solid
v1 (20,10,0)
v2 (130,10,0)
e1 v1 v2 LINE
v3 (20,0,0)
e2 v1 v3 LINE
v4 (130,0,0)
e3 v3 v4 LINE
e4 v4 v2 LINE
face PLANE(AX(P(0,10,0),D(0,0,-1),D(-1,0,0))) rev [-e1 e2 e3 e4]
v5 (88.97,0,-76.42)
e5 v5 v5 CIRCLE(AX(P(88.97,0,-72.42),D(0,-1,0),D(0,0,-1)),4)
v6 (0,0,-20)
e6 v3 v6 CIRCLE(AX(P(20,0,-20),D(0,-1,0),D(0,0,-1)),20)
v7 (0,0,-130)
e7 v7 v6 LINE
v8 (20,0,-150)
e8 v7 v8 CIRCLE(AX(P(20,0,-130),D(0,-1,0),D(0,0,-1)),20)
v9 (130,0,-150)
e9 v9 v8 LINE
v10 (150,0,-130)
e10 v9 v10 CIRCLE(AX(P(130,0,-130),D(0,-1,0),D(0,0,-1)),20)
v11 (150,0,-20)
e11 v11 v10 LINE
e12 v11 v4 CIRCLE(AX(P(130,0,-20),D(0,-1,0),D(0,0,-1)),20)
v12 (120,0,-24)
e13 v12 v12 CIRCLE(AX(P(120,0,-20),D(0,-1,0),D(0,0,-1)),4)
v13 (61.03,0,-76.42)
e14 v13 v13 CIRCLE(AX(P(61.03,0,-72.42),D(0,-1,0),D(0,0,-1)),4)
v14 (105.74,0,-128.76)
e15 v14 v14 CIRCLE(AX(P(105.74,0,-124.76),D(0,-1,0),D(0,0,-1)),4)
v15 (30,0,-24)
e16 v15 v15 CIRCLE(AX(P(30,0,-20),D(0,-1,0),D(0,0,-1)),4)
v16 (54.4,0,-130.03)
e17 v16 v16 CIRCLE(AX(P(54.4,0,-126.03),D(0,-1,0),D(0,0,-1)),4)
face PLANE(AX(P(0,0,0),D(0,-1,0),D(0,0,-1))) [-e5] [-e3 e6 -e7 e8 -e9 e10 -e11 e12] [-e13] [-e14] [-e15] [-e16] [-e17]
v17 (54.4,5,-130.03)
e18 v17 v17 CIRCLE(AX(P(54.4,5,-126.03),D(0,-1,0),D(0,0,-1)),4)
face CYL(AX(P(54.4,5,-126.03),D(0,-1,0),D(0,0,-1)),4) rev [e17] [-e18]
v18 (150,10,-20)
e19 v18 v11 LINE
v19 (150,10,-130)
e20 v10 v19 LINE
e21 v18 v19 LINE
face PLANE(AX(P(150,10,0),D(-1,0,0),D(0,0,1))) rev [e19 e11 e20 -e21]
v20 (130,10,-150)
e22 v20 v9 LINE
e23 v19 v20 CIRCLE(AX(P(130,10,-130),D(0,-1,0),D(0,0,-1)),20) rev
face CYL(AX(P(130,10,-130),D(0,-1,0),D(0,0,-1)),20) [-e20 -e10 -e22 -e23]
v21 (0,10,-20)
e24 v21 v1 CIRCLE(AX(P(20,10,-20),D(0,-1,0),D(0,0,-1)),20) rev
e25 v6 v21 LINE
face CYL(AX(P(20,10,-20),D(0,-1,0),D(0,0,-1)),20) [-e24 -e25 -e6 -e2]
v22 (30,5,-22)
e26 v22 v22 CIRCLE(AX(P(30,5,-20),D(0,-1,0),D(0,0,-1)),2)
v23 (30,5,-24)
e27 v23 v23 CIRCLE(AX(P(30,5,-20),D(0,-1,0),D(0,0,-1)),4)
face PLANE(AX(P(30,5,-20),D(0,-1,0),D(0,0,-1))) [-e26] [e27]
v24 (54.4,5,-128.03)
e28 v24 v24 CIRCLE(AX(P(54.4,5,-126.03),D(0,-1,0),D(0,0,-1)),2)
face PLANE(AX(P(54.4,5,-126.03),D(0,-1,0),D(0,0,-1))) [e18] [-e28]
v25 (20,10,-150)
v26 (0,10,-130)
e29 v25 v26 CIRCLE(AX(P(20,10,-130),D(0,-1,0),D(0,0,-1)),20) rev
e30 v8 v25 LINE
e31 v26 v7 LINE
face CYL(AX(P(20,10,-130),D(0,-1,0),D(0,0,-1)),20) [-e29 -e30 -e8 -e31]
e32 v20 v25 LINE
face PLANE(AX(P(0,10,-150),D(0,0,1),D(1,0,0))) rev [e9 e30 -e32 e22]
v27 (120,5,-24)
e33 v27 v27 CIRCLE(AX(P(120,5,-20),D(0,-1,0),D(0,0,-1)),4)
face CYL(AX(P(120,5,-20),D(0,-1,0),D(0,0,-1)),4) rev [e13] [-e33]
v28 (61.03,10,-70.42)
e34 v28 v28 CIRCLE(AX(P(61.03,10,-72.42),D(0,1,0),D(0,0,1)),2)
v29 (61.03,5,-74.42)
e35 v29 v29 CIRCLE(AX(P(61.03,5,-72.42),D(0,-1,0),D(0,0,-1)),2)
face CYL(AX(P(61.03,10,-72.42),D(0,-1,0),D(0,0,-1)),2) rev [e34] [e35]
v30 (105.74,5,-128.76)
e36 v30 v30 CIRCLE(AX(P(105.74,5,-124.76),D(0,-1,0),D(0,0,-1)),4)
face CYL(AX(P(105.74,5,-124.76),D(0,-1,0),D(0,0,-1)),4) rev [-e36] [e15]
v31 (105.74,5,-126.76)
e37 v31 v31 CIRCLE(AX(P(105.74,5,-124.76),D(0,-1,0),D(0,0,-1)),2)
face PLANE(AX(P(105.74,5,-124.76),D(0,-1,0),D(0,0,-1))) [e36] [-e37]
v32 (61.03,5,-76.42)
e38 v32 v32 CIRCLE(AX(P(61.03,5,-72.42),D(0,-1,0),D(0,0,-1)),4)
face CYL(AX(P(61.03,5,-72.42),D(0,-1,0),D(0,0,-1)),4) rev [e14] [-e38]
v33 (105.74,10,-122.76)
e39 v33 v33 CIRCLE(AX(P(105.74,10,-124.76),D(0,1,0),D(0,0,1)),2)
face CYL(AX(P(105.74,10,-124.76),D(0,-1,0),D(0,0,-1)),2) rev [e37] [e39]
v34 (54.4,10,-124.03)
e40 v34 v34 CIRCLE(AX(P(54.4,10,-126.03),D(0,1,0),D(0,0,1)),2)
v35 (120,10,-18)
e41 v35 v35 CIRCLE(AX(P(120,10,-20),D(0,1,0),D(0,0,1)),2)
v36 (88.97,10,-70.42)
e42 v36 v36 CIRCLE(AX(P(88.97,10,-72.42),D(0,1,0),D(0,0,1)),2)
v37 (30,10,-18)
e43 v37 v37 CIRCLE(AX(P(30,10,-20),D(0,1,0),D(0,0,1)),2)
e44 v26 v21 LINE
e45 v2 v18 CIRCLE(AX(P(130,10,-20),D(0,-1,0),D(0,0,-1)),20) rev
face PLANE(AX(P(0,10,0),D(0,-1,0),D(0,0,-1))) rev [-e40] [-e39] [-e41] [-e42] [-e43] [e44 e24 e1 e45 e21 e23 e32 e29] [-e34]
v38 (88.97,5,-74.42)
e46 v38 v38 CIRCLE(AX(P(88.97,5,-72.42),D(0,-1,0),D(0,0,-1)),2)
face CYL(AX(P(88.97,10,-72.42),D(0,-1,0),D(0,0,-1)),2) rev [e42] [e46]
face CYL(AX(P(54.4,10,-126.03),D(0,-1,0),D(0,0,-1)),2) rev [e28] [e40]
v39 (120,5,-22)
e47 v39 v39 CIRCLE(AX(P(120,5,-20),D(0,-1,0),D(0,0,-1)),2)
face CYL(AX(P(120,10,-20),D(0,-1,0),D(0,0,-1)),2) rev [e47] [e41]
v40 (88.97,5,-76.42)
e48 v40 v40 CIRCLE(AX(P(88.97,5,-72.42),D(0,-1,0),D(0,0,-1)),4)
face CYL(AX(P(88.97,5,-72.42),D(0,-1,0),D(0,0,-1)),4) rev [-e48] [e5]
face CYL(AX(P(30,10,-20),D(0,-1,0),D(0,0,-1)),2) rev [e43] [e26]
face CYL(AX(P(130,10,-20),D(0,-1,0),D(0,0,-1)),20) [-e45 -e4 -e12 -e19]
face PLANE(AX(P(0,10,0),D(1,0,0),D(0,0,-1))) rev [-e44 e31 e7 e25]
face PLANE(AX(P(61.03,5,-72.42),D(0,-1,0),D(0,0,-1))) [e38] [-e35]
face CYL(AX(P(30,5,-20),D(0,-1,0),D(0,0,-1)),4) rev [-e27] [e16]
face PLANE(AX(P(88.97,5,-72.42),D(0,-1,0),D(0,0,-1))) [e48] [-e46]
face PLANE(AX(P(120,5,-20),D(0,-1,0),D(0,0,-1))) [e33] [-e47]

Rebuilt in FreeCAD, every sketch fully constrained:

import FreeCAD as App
import Part
import Sketcher

V = App.Vector


def edges_at(feature, points):
    """Names of the edges that pass closest to the given points."""
    edges = feature.Shape.Edges
    near = lambda p: min(range(len(edges)), key=lambda i: edges[i].distToShape(Part.Vertex(*p))[0])
    return sorted({f"Edge{near(p) + 1}" for p in points})

doc = App.newDocument("Part")
body = doc.addObject("PartDesign::Body", "Body")

# Sketch on XZ plane
sketch1 = body.newObject("Sketcher::SketchObject", "Sketch")
sketch1.AttachmentSupport = (doc.getObject("XZ_Plane"), [""])
sketch1.MapMode = "FlatFace"
sketch1.addGeometry(Part.LineSegment(V(0, -150, 0), V(0, 0, 0)), False)
sketch1.addGeometry(Part.LineSegment(V(0, 0, 0), V(150, 0, 0)), False)
sketch1.addGeometry(Part.LineSegment(V(150, 0, 0), V(150, -150, 0)), False)
sketch1.addGeometry(Part.LineSegment(V(150, -150, 0), V(0, -150, 0)), False)
sketch1.addGeometry(Part.Circle(V(30, -20, 0), V(0, 0, 1), 2), False)
sketch1.addGeometry(Part.Circle(V(61, -72.4, 0), V(0, 0, 1), 2), False)
sketch1.addGeometry(Part.Circle(V(120, -20, 0), V(0, 0, 1), 2), False)
sketch1.addGeometry(Part.Circle(V(89, -72.4, 0), V(0, 0, 1), 2), False)
sketch1.addGeometry(Part.Circle(V(54.4, -126, 0), V(0, 0, 1), 2), False)
sketch1.addGeometry(Part.Circle(V(105.7, -124.8, 0), V(0, 0, 1), 2), False)
sketch1.addConstraint(Sketcher.Constraint("Coincident", 0, 2, 1, 1))
sketch1.addConstraint(Sketcher.Constraint("Coincident", 1, 2, 2, 1))
sketch1.addConstraint(Sketcher.Constraint("Coincident", 2, 2, 3, 1))
sketch1.addConstraint(Sketcher.Constraint("Coincident", 3, 2, 0, 1))
sketch1.addConstraint(Sketcher.Constraint("Vertical", 0))
sketch1.addConstraint(Sketcher.Constraint("Horizontal", 1))
sketch1.addConstraint(Sketcher.Constraint("Vertical", 2))
sketch1.addConstraint(Sketcher.Constraint("Horizontal", 3))
sketch1.addConstraint(Sketcher.Constraint("Coincident", 0, 2, -1, 1))
sketch1.addConstraint(Sketcher.Constraint("Equal", 4, 5))
sketch1.addConstraint(Sketcher.Constraint("Equal", 5, 6))
sketch1.addConstraint(Sketcher.Constraint("Equal", 6, 7))
sketch1.addConstraint(Sketcher.Constraint("Equal", 7, 8))
sketch1.addConstraint(Sketcher.Constraint("Equal", 8, 9))
sketch1.addConstraint(Sketcher.Constraint("Horizontal", 4, 3, 6, 3))
sketch1.addConstraint(Sketcher.Constraint("Horizontal", 5, 3, 7, 3))
sketch1.addConstraint(Sketcher.Constraint("Equal", 3, 0))
sketch1.addConstraint(Sketcher.Constraint("Diameter", 4, 4.0))
sketch1.addConstraint(Sketcher.Constraint("DistanceX", 1, 1, 1, 2, 150.0))
sketch1.addConstraint(Sketcher.Constraint("DistanceX", -1, 1, 4, 3, 30.0))
sketch1.addConstraint(Sketcher.Constraint("DistanceY", 4, 3, -1, 1, 20.0))
sketch1.addConstraint(Sketcher.Constraint("DistanceX", -1, 1, 6, 3, 120.0))
sketch1.addConstraint(Sketcher.Constraint("DistanceX", -1, 1, 8, 3, 54.4))
sketch1.addConstraint(Sketcher.Constraint("DistanceX", -1, 1, 5, 3, 61.03))
sketch1.addConstraint(Sketcher.Constraint("DistanceY", 5, 3, -1, 1, 72.42))
sketch1.addConstraint(Sketcher.Constraint("DistanceX", -1, 1, 7, 3, 88.97))
sketch1.addConstraint(Sketcher.Constraint("DistanceY", 8, 3, -1, 1, 126.03))
sketch1.addConstraint(Sketcher.Constraint("DistanceX", -1, 1, 9, 3, 105.74))
sketch1.addConstraint(Sketcher.Constraint("DistanceY", 9, 3, -1, 1, 124.76))
pad1 = body.newObject("PartDesign::Pad", "Pad")
pad1.Profile = sketch1
pad1.Length = 10
pad1.Reversed = True

# Sketch on XZ plane
sketch2 = body.newObject("Sketcher::SketchObject", "Sketch001")
sketch2.AttachmentSupport = (doc.getObject("XZ_Plane"), [""])
sketch2.MapMode = "FlatFace"
sketch2.addGeometry(Part.Circle(V(30, -20, 0), V(0, 0, 1), 4), False)
sketch2.addGeometry(Part.Circle(V(120, -20, 0), V(0, 0, 1), 4), False)
sketch2.addGeometry(Part.Circle(V(89, -72.4, 0), V(0, 0, 1), 4), False)
sketch2.addGeometry(Part.Circle(V(61, -72.4, 0), V(0, 0, 1), 4), False)
sketch2.addGeometry(Part.Circle(V(54.4, -126, 0), V(0, 0, 1), 4), False)
sketch2.addGeometry(Part.Circle(V(105.7, -124.8, 0), V(0, 0, 1), 4), False)
sketch2.addConstraint(Sketcher.Constraint("Equal", 0, 1))
sketch2.addConstraint(Sketcher.Constraint("Equal", 1, 2))
sketch2.addConstraint(Sketcher.Constraint("Equal", 2, 3))
sketch2.addConstraint(Sketcher.Constraint("Equal", 3, 4))
sketch2.addConstraint(Sketcher.Constraint("Equal", 4, 5))
sketch2.addConstraint(Sketcher.Constraint("Horizontal", 0, 3, 1, 3))
sketch2.addConstraint(Sketcher.Constraint("Horizontal", 2, 3, 3, 3))
sketch2.addConstraint(Sketcher.Constraint("Diameter", 0, 8.0))
sketch2.addConstraint(Sketcher.Constraint("DistanceX", -1, 1, 0, 3, 30.0))
sketch2.addConstraint(Sketcher.Constraint("DistanceY", 0, 3, -1, 1, 20.0))
sketch2.addConstraint(Sketcher.Constraint("DistanceX", -1, 1, 1, 3, 120.0))
sketch2.addConstraint(Sketcher.Constraint("DistanceX", -1, 1, 4, 3, 54.4))
sketch2.addConstraint(Sketcher.Constraint("DistanceX", -1, 1, 2, 3, 88.97))
sketch2.addConstraint(Sketcher.Constraint("DistanceY", 2, 3, -1, 1, 72.42))
sketch2.addConstraint(Sketcher.Constraint("DistanceX", -1, 1, 3, 3, 61.03))
sketch2.addConstraint(Sketcher.Constraint("DistanceY", 4, 3, -1, 1, 126.03))
sketch2.addConstraint(Sketcher.Constraint("DistanceX", -1, 1, 5, 3, 105.74))
sketch2.addConstraint(Sketcher.Constraint("DistanceY", 5, 3, -1, 1, 124.76))
pocket1 = body.newObject("PartDesign::Pocket", "Pocket")
pocket1.Profile = sketch2
pocket1.Length = 5
doc.recompute()

fillet = body.newObject("PartDesign::Fillet", "Fillet")
fillet.Base = (pocket1, edges_at(pocket1, [
    (0, 5, -150),
    (150, 5, -150),
    (150, 5, 0),
    (0, 5, 0),
]))
fillet.Radius = 20

doc.recompute()
